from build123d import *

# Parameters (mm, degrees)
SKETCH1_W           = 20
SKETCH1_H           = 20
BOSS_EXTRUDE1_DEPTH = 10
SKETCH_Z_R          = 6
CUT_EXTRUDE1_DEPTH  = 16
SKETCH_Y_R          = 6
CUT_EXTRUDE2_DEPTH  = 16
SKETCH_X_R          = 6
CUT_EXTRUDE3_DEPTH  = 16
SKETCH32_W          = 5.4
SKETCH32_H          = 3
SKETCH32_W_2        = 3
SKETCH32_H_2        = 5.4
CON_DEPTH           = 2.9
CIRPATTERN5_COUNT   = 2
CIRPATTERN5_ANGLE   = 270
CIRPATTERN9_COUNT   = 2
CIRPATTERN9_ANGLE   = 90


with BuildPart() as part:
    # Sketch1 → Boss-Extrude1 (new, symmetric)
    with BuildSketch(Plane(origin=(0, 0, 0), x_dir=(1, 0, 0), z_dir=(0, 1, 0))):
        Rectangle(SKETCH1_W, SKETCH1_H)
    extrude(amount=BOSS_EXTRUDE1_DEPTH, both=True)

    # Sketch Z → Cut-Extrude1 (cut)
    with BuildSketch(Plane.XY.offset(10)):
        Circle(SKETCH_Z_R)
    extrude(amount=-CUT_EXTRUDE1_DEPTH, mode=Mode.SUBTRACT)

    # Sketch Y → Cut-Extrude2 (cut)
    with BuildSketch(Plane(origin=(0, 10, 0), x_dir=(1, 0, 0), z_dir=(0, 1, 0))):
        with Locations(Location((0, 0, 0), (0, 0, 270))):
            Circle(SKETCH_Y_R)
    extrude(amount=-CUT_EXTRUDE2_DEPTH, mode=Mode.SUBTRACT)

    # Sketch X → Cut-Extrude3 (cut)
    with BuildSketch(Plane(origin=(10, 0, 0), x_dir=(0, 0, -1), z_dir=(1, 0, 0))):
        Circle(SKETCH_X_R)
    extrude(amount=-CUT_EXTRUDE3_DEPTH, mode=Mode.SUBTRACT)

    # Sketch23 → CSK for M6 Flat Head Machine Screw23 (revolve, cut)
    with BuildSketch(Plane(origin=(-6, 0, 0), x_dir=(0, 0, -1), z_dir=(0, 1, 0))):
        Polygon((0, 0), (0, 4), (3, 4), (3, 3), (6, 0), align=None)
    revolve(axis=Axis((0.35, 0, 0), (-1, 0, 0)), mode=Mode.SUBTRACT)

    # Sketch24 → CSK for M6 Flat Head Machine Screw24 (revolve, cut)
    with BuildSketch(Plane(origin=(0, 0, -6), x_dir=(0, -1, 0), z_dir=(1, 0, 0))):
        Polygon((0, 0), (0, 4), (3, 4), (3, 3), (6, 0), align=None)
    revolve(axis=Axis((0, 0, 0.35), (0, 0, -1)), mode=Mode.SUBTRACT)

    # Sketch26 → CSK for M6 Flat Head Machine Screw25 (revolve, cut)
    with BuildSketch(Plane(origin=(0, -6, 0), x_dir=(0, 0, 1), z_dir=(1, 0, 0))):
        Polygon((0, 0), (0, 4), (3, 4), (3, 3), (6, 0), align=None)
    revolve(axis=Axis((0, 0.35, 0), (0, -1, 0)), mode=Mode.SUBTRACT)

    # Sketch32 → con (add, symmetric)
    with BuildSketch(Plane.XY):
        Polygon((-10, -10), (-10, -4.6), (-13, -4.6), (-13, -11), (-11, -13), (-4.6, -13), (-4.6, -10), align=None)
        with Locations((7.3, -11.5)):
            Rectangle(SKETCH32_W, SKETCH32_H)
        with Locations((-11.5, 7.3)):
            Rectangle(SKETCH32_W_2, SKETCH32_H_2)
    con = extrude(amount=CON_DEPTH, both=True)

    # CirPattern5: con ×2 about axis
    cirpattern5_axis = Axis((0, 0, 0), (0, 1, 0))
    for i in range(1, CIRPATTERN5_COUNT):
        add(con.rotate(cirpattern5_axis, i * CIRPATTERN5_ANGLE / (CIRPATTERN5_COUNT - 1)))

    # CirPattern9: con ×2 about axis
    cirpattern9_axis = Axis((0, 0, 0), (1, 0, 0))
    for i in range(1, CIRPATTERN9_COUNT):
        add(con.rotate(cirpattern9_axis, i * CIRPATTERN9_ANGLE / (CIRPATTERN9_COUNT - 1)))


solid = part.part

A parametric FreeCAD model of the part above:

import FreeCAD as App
import Part
import Sketcher
from FreeCAD import Vector

doc = App.newDocument("Part")
params = doc.addObject("Spreadsheet::Sheet", "Params")
for row, (alias, value) in enumerate([
    ("sketch1_width", "20 mm"),
    ("pad1_length", "20 mm"),
    ("sketch2_diameter", "12 mm"),
    ("pocket1_length", "16 mm"),
    ("sketch3_diameter", "12 mm"),
    ("pocket2_length", "16 mm"),
    ("sketch4_diameter", "12 mm"),
    ("pocket3_length", "16 mm"),
    ("sketch5_width", "4 mm"),
    ("sketch5_width2", "1 mm"),
    ("sketch5_height", "6 mm"),
    ("sketch5_height2", "3 mm"),
    ("groove_angle", "360 deg"),
    ("sketch6_width", "6 mm"),
    ("sketch6_width2", "3 mm"),
    ("sketch6_height", "4 mm"),
    ("sketch6_height2", "1 mm"),
    ("groove2_angle", "360 deg"),
    ("sketch7_width", "4 mm"),
    ("sketch7_width2", "1 mm"),
    ("sketch7_height", "6 mm"),
    ("sketch7_height2", "3 mm"),
    ("groove3_angle", "360 deg"),
    ("sketch8_width", "3 mm"),
    ("sketch8_width2", "6.4 mm"),
    ("sketch8_width3", "5.4 mm"),
    ("pad2_length", "5.8 mm"),
], start=1):
    params.set(f"A{row}", alias)
    params.set(f"B{row}", "=" + value)
    params.setAlias(f"B{row}", alias)

body = doc.addObject("PartDesign::Body", "Body")

sketch1 = doc.addObject("Sketcher::SketchObject", "Sketch")
body.addObject(sketch1)
sketch1.AttachmentSupport = (doc.XZ_Plane, [""])
sketch1.MapMode = "FlatFace"
sketch1.addGeometry([
    Part.LineSegment(Vector(-10, -10, 0), Vector(-10, 10, 0)),
    Part.LineSegment(Vector(-10, 10, 0), Vector(10, 10, 0)),
    Part.LineSegment(Vector(10, 10, 0), Vector(10, -10, 0)),
    Part.LineSegment(Vector(10, -10, 0), Vector(-10, -10, 0)),
], False)
sketch1.addConstraint([
    Sketcher.Constraint("Coincident", 0, 2, 1, 1),
    Sketcher.Constraint("Coincident", 1, 2, 2, 1),
    Sketcher.Constraint("Coincident", 2, 2, 3, 1),
    Sketcher.Constraint("Coincident", 3, 2, 0, 1),
    Sketcher.Constraint("Vertical", 0),
    Sketcher.Constraint("Horizontal", 1),
    Sketcher.Constraint("Vertical", 2),
    Sketcher.Constraint("Horizontal", 3),
    Sketcher.Constraint("Symmetric", 0, 2, 2, 2, -1, 1),
    Sketcher.Constraint("Equal", 3, 0),
    Sketcher.Constraint("DistanceX", 1, 1, 1, 2, 20.0),
])
sketch1.setExpression("Constraints[10]", "Params.sketch1_width")
pad1 = doc.addObject("PartDesign::Pad", "Pad")
body.addObject(pad1)
pad1.Profile = sketch1
pad1.setExpression("Length", "Params.pad1_length")
pad1.Midplane = True

sketch2 = doc.addObject("Sketcher::SketchObject", "Sketch001")
body.addObject(sketch2)
sketch2.AttachmentSupport = (doc.XY_Plane, [""])
sketch2.MapMode = "FlatFace"
sketch2.AttachmentOffset = App.Placement(Vector(0, 0, 10), App.Rotation())
sketch2.addGeometry(Part.Circle(Vector(0, 0, 0), Vector(0, 0, 1), 6), False)
sketch2.addConstraint([
    Sketcher.Constraint("Coincident", 0, 3, -1, 1),
    Sketcher.Constraint("Diameter", 0, 12.0),
])
sketch2.setExpression("Constraints[1]", "Params.sketch2_diameter")
pocket1 = doc.addObject("PartDesign::Pocket", "Pocket")
body.addObject(pocket1)
pocket1.Profile = sketch2
pocket1.setExpression("Length", "Params.pocket1_length")

sketch3 = doc.addObject("Sketcher::SketchObject", "Sketch002")
body.addObject(sketch3)
sketch3.AttachmentSupport = (doc.XZ_Plane, [""])
sketch3.MapMode = "FlatFace"
sketch3.AttachmentOffset = App.Placement(Vector(0, 0, -10), App.Rotation())
sketch3.addGeometry(Part.Circle(Vector(0, 0, 0), Vector(0, 0, 1), 6), False)
sketch3.addConstraint([
    Sketcher.Constraint("Coincident", 0, 3, -1, 1),
    Sketcher.Constraint("Diameter", 0, 12.0),
])
sketch3.setExpression("Constraints[1]", "Params.sketch3_diameter")
pocket2 = doc.addObject("PartDesign::Pocket", "Pocket001")
body.addObject(pocket2)
pocket2.Profile = sketch3
pocket2.setExpression("Length", "Params.pocket2_length")
pocket2.Reversed = True

sketch4 = doc.addObject("Sketcher::SketchObject", "Sketch003")
body.addObject(sketch4)
sketch4.AttachmentSupport = (doc.YZ_Plane, [""])
sketch4.MapMode = "FlatFace"
sketch4.AttachmentOffset = App.Placement(Vector(0, 0, 10), App.Rotation())
sketch4.addGeometry(Part.Circle(Vector(0, 0, 0), Vector(0, 0, 1), 6), False)
sketch4.addConstraint([
    Sketcher.Constraint("Coincident", 0, 3, -1, 1),
    Sketcher.Constraint("Diameter", 0, 12.0),
])
sketch4.setExpression("Constraints[1]", "Params.sketch4_diameter")
pocket3 = doc.addObject("PartDesign::Pocket", "Pocket002")
body.addObject(pocket3)
pocket3.Profile = sketch4
pocket3.setExpression("Length", "Params.pocket3_length")

sketch5 = doc.addObject("Sketcher::SketchObject", "Sketch004")
body.addObject(sketch5)
sketch5.AttachmentSupport = (doc.XZ_Plane, [""])
sketch5.MapMode = "FlatFace"
sketch5.addGeometry([
    Part.LineSegment(Vector(-10, 0, 0), Vector(-6, 0, 0)),
    Part.LineSegment(Vector(-6, 0, 0), Vector(-6, -6, 0)),
    Part.LineSegment(Vector(-6, -6, 0), Vector(-9, -3, 0)),
    Part.LineSegment(Vector(-9, -3, 0), Vector(-10, -3, 0)),
    Part.LineSegment(Vector(-10, -3, 0), Vector(-10, 0, 0)),
], False)
sketch5.addConstraint([
    Sketcher.Constraint("Coincident", 0, 2, 1, 1),
    Sketcher.Constraint("Coincident", 1, 2, 2, 1),
    Sketcher.Constraint("Coincident", 2, 2, 3, 1),
    Sketcher.Constraint("Coincident", 3, 2, 4, 1),
    Sketcher.Constraint("Coincident", 4, 2, 0, 1),
    Sketcher.Constraint("Horizontal", 0),
    Sketcher.Constraint("Vertical", 1),
    Sketcher.Constraint("Horizontal", 3),
    Sketcher.Constraint("Vertical", 4),
    Sketcher.Constraint("PointOnObject", 0, 2, -1),
    Sketcher.Constraint("DistanceX", 0, 1, 0, 2, 4.0),
    Sketcher.Constraint("DistanceX", 3, 2, 3, 1, 1.0),
    Sketcher.Constraint("DistanceY", 1, 2, 1, 1, 6.0),
    Sketcher.Constraint("DistanceY", 4, 1, 4, 2, 3.0),
    Sketcher.Constraint("DistanceX", 0, 2, -1, 1, 6.0),
])
sketch5.setExpression("Constraints[10]", "Params.sketch5_width")
sketch5.setExpression("Constraints[11]", "Params.sketch5_width2")
sketch5.setExpression("Constraints[12]", "Params.sketch5_height")
sketch5.setExpression("Constraints[13]", "Params.sketch5_height2")
groove = doc.addObject("PartDesign::Groove", "Groove")
body.addObject(groove)
groove.Profile = sketch5
groove.ReferenceAxis = (sketch5, ["H_Axis"])
groove.setExpression("Angle", "Params.groove_angle")

sketch6 = doc.addObject("Sketcher::SketchObject", "Sketch005")
body.addObject(sketch6)
sketch6.AttachmentSupport = (doc.YZ_Plane, [""])
sketch6.MapMode = "FlatFace"
sketch6.addGeometry([
    Part.LineSegment(Vector(0, -10, 0), Vector(0, -6, 0)),
    Part.LineSegment(Vector(0, -6, 0), Vector(-6, -6, 0)),
    Part.LineSegment(Vector(-6, -6, 0), Vector(-3, -9, 0)),
    Part.LineSegment(Vector(-3, -9, 0), Vector(-3, -10, 0)),
    Part.LineSegment(Vector(-3, -10, 0), Vector(0, -10, 0)),
], False)
sketch6.addConstraint([
    Sketcher.Constraint("Coincident", 0, 2, 1, 1),
    Sketcher.Constraint("Coincident", 1, 2, 2, 1),
    Sketcher.Constraint("Coincident", 2, 2, 3, 1),
    Sketcher.Constraint("Coincident", 3, 2, 4, 1),
    Sketcher.Constraint("Coincident", 4, 2, 0, 1),
    Sketcher.Constraint("Vertical", 0),
    Sketcher.Constraint("Horizontal", 1),
    Sketcher.Constraint("Vertical", 3),
    Sketcher.Constraint("Horizontal", 4),
    Sketcher.Constraint("PointOnObject", 0, 2, -2),
    Sketcher.Constraint("DistanceX", 1, 2, 1, 1, 6.0),
    Sketcher.Constraint("DistanceX", 4, 1, 4, 2, 3.0),
    Sketcher.Constraint("DistanceY", 0, 1, 0, 2, 4.0),
    Sketcher.Constraint("DistanceY", 3, 2, 3, 1, 1.0),
    Sketcher.Constraint("DistanceY", 0, 2, -1, 1, 6.0),
])
sketch6.setExpression("Constraints[10]", "Params.sketch6_width")
sketch6.setExpression("Constraints[11]", "Params.sketch6_width2")
sketch6.setExpression("Constraints[12]", "Params.sketch6_height")
sketch6.setExpression("Constraints[13]", "Params.sketch6_height2")
groove2 = doc.addObject("PartDesign::Groove", "Groove001")
body.addObject(groove2)
groove2.Profile = sketch6
groove2.ReferenceAxis = (sketch6, ["V_Axis"])
groove2.setExpression("Angle", "Params.groove2_angle")

sketch7 = doc.addObject("Sketcher::SketchObject", "Sketch006")
body.addObject(sketch7)
sketch7.AttachmentSupport = (doc.YZ_Plane, [""])
sketch7.MapMode = "FlatFace"
sketch7.addGeometry([
    Part.LineSegment(Vector(-10, 0, 0), Vector(-6, 0, 0)),
    Part.LineSegment(Vector(-6, 0, 0), Vector(-6, 6, 0)),
    Part.LineSegment(Vector(-6, 6, 0), Vector(-9, 3, 0)),
    Part.LineSegment(Vector(-9, 3, 0), Vector(-10, 3, 0)),
    Part.LineSegment(Vector(-10, 3, 0), Vector(-10, 0, 0)),
], False)
sketch7.addConstraint([
    Sketcher.Constraint("Coincident", 0, 2, 1, 1),
    Sketcher.Constraint("Coincident", 1, 2, 2, 1),
    Sketcher.Constraint("Coincident", 2, 2, 3, 1),
    Sketcher.Constraint("Coincident", 3, 2, 4, 1),
    Sketcher.Constraint("Coincident", 4, 2, 0, 1),
    Sketcher.Constraint("Horizontal", 0),
    Sketcher.Constraint("Vertical", 1),
    Sketcher.Constraint("Horizontal", 3),
    Sketcher.Constraint("Vertical", 4),
    Sketcher.Constraint("PointOnObject", 0, 2, -1),
    Sketcher.Constraint("DistanceX", 0, 1, 0, 2, 4.0),
    Sketcher.Constraint("DistanceX", 3, 2, 3, 1, 1.0),
    Sketcher.Constraint("DistanceY", 1, 1, 1, 2, 6.0),
    Sketcher.Constraint("DistanceY", 4, 2, 4, 1, 3.0),
    Sketcher.Constraint("DistanceX", 0, 2, -1, 1, 6.0),
])
sketch7.setExpression("Constraints[10]", "Params.sketch7_width")
sketch7.setExpression("Constraints[11]", "Params.sketch7_width2")
sketch7.setExpression("Constraints[12]", "Params.sketch7_height")
sketch7.setExpression("Constraints[13]", "Params.sketch7_height2")
groove3 = doc.addObject("PartDesign::Groove", "Groove002")
body.addObject(groove3)
groove3.Profile = sketch7
groove3.ReferenceAxis = (sketch7, ["H_Axis"])
groove3.setExpression("Angle", "Params.groove3_angle")

sketch8 = doc.addObject("Sketcher::SketchObject", "Sketch007")
body.addObject(sketch8)
sketch8.AttachmentSupport = (doc.XY_Plane, [""])
sketch8.MapMode = "FlatFace"
sketch8.addGeometry([
    Part.LineSegment(Vector(-10, -10, 0), Vector(-10, -4.6, 0)),
    Part.LineSegment(Vector(-10, -4.6, 0), Vector(-13, -4.6, 0)),
    Part.LineSegment(Vector(-13, -4.6, 0), Vector(-13, -11, 0)),
    Part.LineSegment(Vector(-13, -11, 0), Vector(-11, -13, 0)),
    Part.LineSegment(Vector(-11, -13, 0), Vector(-4.6, -13, 0)),
    Part.LineSegment(Vector(-4.6, -13, 0), Vector(-4.6, -10, 0)),
    Part.LineSegment(Vector(-4.6, -10, 0), Vector(-10, -10, 0)),
    Part.LineSegment(Vector(4.6, -10, 0), Vector(4.6, -13, 0)),
    Part.LineSegment(Vector(4.6, -13, 0), Vector(10, -13, 0)),
    Part.LineSegment(Vector(10, -13, 0), Vector(10, -10, 0)),
    Part.LineSegment(Vector(10, -10, 0), Vector(4.6, -10, 0)),
    Part.LineSegment(Vector(-13, 10, 0), Vector(-13, 4.6, 0)),
    Part.LineSegment(Vector(-13, 4.6, 0), Vector(-10, 4.6, 0)),
    Part.LineSegment(Vector(-10, 4.6, 0), Vector(-10, 10, 0)),
    Part.LineSegment(Vector(-10, 10, 0), Vector(-13, 10, 0)),
], False)
sketch8.addConstraint([
    Sketcher.Constraint("Coincident", 0, 2, 1, 1),
    Sketcher.Constraint("Coincident", 1, 2, 2, 1),
    Sketcher.Constraint("Coincident", 2, 2, 3, 1),
    Sketcher.Constraint("Coincident", 3, 2, 4, 1),
    Sketcher.Constraint("Coincident", 4, 2, 5, 1),
    Sketcher.Constraint("Coincident", 5, 2, 6, 1),
    Sketcher.Constraint("Coincident", 6, 2, 0, 1),
    Sketcher.Constraint("Coincident", 7, 2, 8, 1),
    Sketcher.Constraint("Coincident", 8, 2, 9, 1),
    Sketcher.Constraint("Coincident", 9, 2, 10, 1),
    Sketcher.Constraint("Coincident", 10, 2, 7, 1),
    Sketcher.Constraint("Coincident", 11, 2, 12, 1),
    Sketcher.Constraint("Coincident", 12, 2, 13, 1),
    Sketcher.Constraint("Coincident", 13, 2, 14, 1),
    Sketcher.Constraint("Coincident", 14, 2, 11, 1),
    Sketcher.Constraint("Vertical", 0),
    Sketcher.Constraint("Horizontal", 1),
    Sketcher.Constraint("Vertical", 2),
    Sketcher.Constraint("Horizontal", 4),
    Sketcher.Constraint("Vertical", 5),
    Sketcher.Constraint("Horizontal", 6),
    Sketcher.Constraint("Vertical", 7),
    Sketcher.Constraint("Horizontal", 8),
    Sketcher.Constraint("Vertical", 9),
    Sketcher.Constraint("Horizontal", 10),
    Sketcher.Constraint("Vertical", 11),
    Sketcher.Constraint("Horizontal", 12),
    Sketcher.Constraint("Vertical", 13),
    Sketcher.Constraint("Horizontal", 14),
    Sketcher.Constraint("Symmetric", 9, 2, 13, 2, -1, 1),
    Sketcher.Constraint("Symmetric", 4, 2, 7, 2, -2),
    Sketcher.Constraint("Symmetric", 6, 2, 9, 2, -2),
    Sketcher.Constraint("Symmetric", 1, 2, 11, 2, -1),
    Sketcher.Constraint("Equal", 10, 0),
    Sketcher.Constraint("Equal", 4, 2),
    Sketcher.Constraint("Equal", 14, 5),
    Sketcher.Constraint("DistanceX", 1, 2, 1, 1, 3.0),
    Sketcher.Constraint("DistanceX", 4, 1, 4, 2, 6.4),
    Sketcher.Constraint("DistanceX", 6, 2, 6, 1, 5.4),
    Sketcher.Constraint("DistanceX", 0, 2, -1, 1, 10.0),
    Sketcher.Constraint("DistanceY", 2, 2, -1, 1, 11.0),
])
sketch8.setExpression("Constraints[36]", "Params.sketch8_width")
sketch8.setExpression("Constraints[37]", "Params.sketch8_width2")
sketch8.setExpression("Constraints[38]", "Params.sketch8_width3")
pad2 = doc.addObject("PartDesign::Pad", "Pad001")
body.addObject(pad2)
pad2.Profile = sketch8
pad2.setExpression("Length", "Params.pad2_length")
pad2.Midplane = True
doc.recompute()

polarpattern = doc.addObject("PartDesign::PolarPattern", "PolarPattern")
body.addObject(polarpattern)
polarpattern.Originals = [pad2]
polarpattern.Axis = (doc.Y_Axis, [""])
polarpattern.Angle = 270
polarpattern.Occurrences = 2
body.Tip = polarpattern
doc.recompute()

polarpattern2 = doc.addObject("PartDesign::PolarPattern", "PolarPattern001")
body.addObject(polarpattern2)
polarpattern2.Originals = [pad2]
polarpattern2.Axis = (doc.X_Axis, [""])
polarpattern2.Angle = 90
polarpattern2.Occurrences = 2
body.Tip = polarpattern2

doc.recompute()
